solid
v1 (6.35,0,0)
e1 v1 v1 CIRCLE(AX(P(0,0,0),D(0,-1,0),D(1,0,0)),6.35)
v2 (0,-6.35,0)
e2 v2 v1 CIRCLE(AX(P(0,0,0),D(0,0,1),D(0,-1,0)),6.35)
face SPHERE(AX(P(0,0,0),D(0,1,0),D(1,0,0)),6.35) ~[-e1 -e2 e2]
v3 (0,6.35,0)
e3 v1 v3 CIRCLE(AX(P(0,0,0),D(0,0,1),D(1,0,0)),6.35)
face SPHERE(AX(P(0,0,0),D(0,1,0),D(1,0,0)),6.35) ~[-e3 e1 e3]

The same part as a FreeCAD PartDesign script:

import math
import FreeCAD as App
import Part
import Sketcher

V = App.Vector
Q = App.Units.Quantity

doc = App.newDocument("Part")
body = doc.addObject("PartDesign::Body", "Body")

# Sketch on XY plane
sketch1 = body.newObject("Sketcher::SketchObject", "Sketch")
sketch1.AttachmentSupport = (doc.getObject("XY_Plane"), [""])
sketch1.MapMode = "FlatFace"
sketch1.addGeometry([
    Part.ArcOfCircle(Part.Circle(V(0, 0, 0), V(0, 0, 1), 6), math.radians(-90), math.radians(0)),
    Part.ArcOfCircle(Part.Circle(V(0, 0, 0), V(0, 0, 1), 6), math.radians(0), math.radians(90)),
    Part.LineSegment(V(0, 6, 0), V(0, -6, 0)),
], False)
sketch1.addConstraint([
    Sketcher.Constraint("Tangent", 0, 2, 1, 1),
    Sketcher.Constraint("Coincident", 1, 2, 2, 1),
    Sketcher.Constraint("Coincident", 2, 2, 0, 1),
    Sketcher.Constraint("Vertical", 2),
    Sketcher.Constraint("Coincident", 0, 3, -1, 1),
    Sketcher.Constraint("Equal", 0, 1),
    Sketcher.Constraint("PointOnObject", 0, 2, -1),
    Sketcher.Constraint("PointOnObject", 1, 2, -2),
    Sketcher.Constraint("Radius", 0, Q("0.25 in")),
])
revolution = body.newObject("PartDesign::Revolution", "Revolution")
revolution.Profile = sketch1
revolution.ReferenceAxis = (sketch1, ["V_Axis"])
revolution.Angle = 360

doc.recompute()
